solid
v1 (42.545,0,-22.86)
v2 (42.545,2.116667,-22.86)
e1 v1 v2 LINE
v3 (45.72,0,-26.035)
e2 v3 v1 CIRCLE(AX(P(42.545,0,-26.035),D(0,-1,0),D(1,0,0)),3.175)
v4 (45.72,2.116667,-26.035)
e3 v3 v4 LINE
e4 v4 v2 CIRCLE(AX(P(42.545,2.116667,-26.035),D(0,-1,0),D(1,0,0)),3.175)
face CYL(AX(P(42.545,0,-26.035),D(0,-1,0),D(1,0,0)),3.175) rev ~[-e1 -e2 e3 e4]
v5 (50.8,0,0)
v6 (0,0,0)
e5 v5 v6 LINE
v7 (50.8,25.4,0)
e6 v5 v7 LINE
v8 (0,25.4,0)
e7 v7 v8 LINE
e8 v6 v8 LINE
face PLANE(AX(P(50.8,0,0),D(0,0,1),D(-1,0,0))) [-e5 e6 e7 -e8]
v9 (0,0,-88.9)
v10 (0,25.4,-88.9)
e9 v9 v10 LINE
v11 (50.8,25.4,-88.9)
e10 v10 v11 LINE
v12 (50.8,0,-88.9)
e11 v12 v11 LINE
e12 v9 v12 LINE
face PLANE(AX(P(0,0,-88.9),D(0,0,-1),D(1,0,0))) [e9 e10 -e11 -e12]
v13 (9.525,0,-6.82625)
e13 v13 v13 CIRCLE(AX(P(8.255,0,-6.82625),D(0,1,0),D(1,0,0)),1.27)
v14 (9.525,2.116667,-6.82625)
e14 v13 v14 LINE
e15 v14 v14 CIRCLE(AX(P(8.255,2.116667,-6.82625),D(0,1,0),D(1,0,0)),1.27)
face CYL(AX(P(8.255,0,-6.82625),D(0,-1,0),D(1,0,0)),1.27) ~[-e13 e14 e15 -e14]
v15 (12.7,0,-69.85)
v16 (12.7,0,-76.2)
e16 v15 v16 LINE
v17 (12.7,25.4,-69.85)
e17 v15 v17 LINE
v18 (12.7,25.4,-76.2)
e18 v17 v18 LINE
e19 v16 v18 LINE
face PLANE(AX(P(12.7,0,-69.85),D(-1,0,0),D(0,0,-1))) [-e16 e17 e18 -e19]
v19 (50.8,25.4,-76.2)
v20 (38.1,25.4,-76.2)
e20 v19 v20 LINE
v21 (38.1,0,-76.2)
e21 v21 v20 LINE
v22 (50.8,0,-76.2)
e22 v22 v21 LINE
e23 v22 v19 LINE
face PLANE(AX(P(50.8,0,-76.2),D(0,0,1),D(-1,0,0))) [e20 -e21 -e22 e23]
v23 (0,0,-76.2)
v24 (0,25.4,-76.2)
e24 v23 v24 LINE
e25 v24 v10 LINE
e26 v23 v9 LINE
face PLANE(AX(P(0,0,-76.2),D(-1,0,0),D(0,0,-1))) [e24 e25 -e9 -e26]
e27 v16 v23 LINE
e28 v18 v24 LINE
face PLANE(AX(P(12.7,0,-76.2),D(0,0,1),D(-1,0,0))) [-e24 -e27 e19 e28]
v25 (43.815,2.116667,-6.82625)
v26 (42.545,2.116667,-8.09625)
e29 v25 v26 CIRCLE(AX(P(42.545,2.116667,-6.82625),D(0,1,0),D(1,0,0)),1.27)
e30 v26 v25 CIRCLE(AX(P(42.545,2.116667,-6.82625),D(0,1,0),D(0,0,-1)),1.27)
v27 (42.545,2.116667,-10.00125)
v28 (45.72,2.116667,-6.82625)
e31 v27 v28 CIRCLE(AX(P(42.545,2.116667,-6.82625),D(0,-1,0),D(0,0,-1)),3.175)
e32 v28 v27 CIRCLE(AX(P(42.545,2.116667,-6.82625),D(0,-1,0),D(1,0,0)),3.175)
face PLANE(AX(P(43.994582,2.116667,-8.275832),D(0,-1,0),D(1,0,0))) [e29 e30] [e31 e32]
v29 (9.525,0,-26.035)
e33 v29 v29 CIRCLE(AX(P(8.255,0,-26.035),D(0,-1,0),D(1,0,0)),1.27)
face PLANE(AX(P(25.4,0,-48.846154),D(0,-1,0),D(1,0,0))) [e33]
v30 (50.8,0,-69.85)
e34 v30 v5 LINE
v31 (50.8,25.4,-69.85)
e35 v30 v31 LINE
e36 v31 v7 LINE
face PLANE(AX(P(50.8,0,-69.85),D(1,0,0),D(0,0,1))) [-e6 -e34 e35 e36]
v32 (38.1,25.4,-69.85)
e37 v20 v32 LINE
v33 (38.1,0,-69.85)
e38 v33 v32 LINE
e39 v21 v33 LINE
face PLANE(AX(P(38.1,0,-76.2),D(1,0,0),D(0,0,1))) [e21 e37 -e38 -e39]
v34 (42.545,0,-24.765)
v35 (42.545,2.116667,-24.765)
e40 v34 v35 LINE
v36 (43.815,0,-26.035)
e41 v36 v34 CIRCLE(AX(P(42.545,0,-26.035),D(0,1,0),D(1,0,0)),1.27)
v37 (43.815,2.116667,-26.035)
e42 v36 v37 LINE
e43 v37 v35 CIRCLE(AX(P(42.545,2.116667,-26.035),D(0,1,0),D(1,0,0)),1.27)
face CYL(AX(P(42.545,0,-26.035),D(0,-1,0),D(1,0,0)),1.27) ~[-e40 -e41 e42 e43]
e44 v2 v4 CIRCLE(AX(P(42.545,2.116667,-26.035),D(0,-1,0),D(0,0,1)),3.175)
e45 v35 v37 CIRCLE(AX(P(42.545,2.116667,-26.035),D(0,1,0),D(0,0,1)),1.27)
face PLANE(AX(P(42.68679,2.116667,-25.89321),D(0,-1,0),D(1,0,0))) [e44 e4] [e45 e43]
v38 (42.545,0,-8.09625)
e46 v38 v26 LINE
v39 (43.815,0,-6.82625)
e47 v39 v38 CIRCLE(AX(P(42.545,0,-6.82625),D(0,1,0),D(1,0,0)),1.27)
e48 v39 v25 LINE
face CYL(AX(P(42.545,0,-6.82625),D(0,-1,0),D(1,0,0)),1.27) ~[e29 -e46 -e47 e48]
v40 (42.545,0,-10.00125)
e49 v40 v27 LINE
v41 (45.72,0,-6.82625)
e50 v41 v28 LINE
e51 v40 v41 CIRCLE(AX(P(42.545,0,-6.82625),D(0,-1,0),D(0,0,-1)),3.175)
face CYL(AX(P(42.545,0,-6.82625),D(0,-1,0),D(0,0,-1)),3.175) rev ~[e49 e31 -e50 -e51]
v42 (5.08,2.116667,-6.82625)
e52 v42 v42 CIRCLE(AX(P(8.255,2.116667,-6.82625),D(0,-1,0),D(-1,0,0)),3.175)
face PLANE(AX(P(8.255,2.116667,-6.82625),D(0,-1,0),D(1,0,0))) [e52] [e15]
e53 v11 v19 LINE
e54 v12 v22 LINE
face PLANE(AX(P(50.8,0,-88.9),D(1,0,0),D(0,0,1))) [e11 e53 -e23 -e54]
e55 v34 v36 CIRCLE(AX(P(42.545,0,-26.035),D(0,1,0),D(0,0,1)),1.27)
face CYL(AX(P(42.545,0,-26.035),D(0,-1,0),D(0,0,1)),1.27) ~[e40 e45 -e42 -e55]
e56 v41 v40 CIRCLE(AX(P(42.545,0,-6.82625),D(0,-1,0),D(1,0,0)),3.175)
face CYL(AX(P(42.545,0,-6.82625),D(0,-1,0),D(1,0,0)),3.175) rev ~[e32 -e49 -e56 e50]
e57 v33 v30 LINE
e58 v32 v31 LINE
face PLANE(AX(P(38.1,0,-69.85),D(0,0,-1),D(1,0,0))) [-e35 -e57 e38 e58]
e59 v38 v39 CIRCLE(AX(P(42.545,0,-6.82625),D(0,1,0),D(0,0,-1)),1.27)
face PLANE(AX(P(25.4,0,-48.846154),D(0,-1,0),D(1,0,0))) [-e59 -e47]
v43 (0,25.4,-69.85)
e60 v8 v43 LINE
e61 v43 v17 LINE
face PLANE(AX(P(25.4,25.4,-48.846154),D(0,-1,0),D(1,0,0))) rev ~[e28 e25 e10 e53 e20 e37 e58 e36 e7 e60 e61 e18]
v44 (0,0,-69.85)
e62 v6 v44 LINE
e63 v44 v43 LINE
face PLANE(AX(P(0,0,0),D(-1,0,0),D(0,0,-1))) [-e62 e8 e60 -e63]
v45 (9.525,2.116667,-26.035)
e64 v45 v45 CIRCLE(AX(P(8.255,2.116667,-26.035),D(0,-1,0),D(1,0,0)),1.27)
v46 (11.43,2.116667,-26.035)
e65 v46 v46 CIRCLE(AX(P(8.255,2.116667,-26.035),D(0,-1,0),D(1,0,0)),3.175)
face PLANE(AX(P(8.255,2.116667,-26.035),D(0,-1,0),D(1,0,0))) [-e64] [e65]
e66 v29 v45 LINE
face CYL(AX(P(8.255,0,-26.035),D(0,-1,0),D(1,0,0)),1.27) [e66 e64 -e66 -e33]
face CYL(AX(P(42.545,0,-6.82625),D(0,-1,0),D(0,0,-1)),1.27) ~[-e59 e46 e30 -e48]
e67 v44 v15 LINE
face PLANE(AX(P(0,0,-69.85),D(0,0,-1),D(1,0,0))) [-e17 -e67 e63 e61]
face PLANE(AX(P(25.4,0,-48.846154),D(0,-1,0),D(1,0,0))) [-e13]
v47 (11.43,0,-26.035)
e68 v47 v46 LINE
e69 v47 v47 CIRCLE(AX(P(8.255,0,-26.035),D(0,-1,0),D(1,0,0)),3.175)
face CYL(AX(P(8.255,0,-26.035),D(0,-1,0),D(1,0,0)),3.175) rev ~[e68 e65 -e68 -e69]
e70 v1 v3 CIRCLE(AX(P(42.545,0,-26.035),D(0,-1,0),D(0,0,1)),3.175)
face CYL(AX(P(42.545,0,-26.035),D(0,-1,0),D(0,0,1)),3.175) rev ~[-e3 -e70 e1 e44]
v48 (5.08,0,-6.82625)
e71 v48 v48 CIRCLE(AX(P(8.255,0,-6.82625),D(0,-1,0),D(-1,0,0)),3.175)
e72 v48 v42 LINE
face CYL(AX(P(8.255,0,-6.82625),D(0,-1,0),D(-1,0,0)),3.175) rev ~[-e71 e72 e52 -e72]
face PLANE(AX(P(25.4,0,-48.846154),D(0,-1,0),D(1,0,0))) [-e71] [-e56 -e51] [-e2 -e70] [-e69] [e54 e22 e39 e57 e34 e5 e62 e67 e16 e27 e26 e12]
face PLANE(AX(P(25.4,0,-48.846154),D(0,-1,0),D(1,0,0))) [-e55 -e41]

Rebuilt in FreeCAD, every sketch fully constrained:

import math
import FreeCAD as App
import Part
import Sketcher

V = App.Vector
Q = App.Units.Quantity

doc = App.newDocument("Part")
body = doc.addObject("PartDesign::Body", "Body")

# Sketch on XZ plane
sketch1 = doc.addObject("Sketcher::SketchObject", "Sketch")
body.addObject(sketch1)
sketch1.AttachmentSupport = (doc.XZ_Plane, [""])
sketch1.MapMode = "FlatFace"
sketch1.addGeometry([
    Part.LineSegment(V(51, 0, 0), V(0, 0, 0)),  # 0
    Part.LineSegment(V(0, 0, 0), V(0, -70, 0)),  # 1
    Part.LineSegment(V(0, -70, 0), V(13, -70, 0)),  # 2
    Part.LineSegment(V(13, -70, 0), V(13, -76, 0)),  # 3
    Part.LineSegment(V(13, -76, 0), V(0, -76, 0)),  # 4
    Part.LineSegment(V(0, -76, 0), V(0, -89, 0)),  # 5
    Part.LineSegment(V(0, -89, 0), V(51, -89, 0)),  # 6
    Part.LineSegment(V(51, -89, 0), V(51, -76, 0)),  # 7
    Part.LineSegment(V(51, -76, 0), V(38, -76, 0)),  # 8
    Part.LineSegment(V(38, -76, 0), V(38, -70, 0)),  # 9
    Part.LineSegment(V(38, -70, 0), V(51, -70, 0)),  # 10
    Part.LineSegment(V(51, -70, 0), V(51, 0, 0)),  # 11
], False)
sketch1.addConstraint([
    Sketcher.Constraint("Coincident", 0, 2, 1, 1),
    Sketcher.Constraint("Coincident", 1, 2, 2, 1),
    Sketcher.Constraint("Coincident", 2, 2, 3, 1),
    Sketcher.Constraint("Coincident", 3, 2, 4, 1),
    Sketcher.Constraint("Coincident", 4, 2, 5, 1),
    Sketcher.Constraint("Coincident", 5, 2, 6, 1),
    Sketcher.Constraint("Coincident", 6, 2, 7, 1),
    Sketcher.Constraint("Coincident", 7, 2, 8, 1),
    Sketcher.Constraint("Coincident", 8, 2, 9, 1),
    Sketcher.Constraint("Coincident", 9, 2, 10, 1),
    Sketcher.Constraint("Coincident", 10, 2, 11, 1),
    Sketcher.Constraint("Coincident", 11, 2, 0, 1),
    Sketcher.Constraint("Horizontal", 0),
    Sketcher.Constraint("Vertical", 1),
    Sketcher.Constraint("Horizontal", 2),
    Sketcher.Constraint("Vertical", 3),
    Sketcher.Constraint("Horizontal", 4),
    Sketcher.Constraint("Vertical", 5),
    Sketcher.Constraint("Horizontal", 6),
    Sketcher.Constraint("Vertical", 7),
    Sketcher.Constraint("Horizontal", 8),
    Sketcher.Constraint("Vertical", 9),
    Sketcher.Constraint("Horizontal", 10),
    Sketcher.Constraint("Vertical", 11),
    Sketcher.Constraint("Coincident", 0, 2, -1, 1),
    Sketcher.Constraint("PointOnObject", 4, 2, -2),
    Sketcher.Constraint("Horizontal", 4, 2, 7, 2),
    Sketcher.Constraint("Horizontal", 2, 2, 9, 2),
    Sketcher.Constraint("Vertical", 7, 2, 10, 2),
    Sketcher.Constraint("Equal", 4, 8),
    Sketcher.Constraint("Equal", 10, 5),
    Sketcher.Constraint("DistanceX", 0, 2, 0, 1, Q("2 in")),
    Sketcher.Constraint("DistanceX", 2, 1, 2, 2, Q("0.5 in")),
    Sketcher.Constraint("DistanceY", 3, 2, -1, 1, Q("3 in")),
    Sketcher.Constraint("DistanceY", 1, 2, 1, 1, Q("2.75 in")),
])
pad1 = doc.addObject("PartDesign::Pad", "Pad")
body.addObject(pad1)
pad1.Profile = sketch1
pad1.Length = Q("1 in")
pad1.Reversed = True

# Sketch on XZ plane
sketch2 = doc.addObject("Sketcher::SketchObject", "Sketch001")
body.addObject(sketch2)
sketch2.AttachmentSupport = (doc.XZ_Plane, [""])
sketch2.MapMode = "FlatFace"
sketch2.addGeometry([
    Part.Circle(V(8.3, -6.8, 0), V(0, 0, 1), 3.2),  # 0
    Part.Circle(V(8.3, -6.8, 0), V(0, 0, 1), 1.3),  # 1
    Part.ArcOfCircle(Part.Circle(V(42.5, -6.8, 0), V(0, 0, 1), 3.2), math.radians(-90), math.radians(0)),  # 2
    Part.ArcOfCircle(Part.Circle(V(42.5, -6.8, 0), V(0, 0, 1), 3.2), math.radians(0), math.radians(270)),  # 3
    Part.ArcOfCircle(Part.Circle(V(42.5, -6.8, 0), V(0, 0, 1), 1.3), math.radians(-90), math.radians(0)),  # 4
    Part.ArcOfCircle(Part.Circle(V(42.5, -6.8, 0), V(0, 0, 1), 1.3), math.radians(0), math.radians(270)),  # 5
    Part.ArcOfCircle(Part.Circle(V(42.5, -26, 0), V(0, 0, 1), 3.2), math.radians(0), math.radians(90)),  # 6
    Part.ArcOfCircle(Part.Circle(V(42.5, -26, 0), V(0, 0, 1), 3.2), math.radians(90), math.radians(360)),  # 7
    Part.ArcOfCircle(Part.Circle(V(42.5, -26, 0), V(0, 0, 1), 1.3), math.radians(0), math.radians(90)),  # 8
    Part.ArcOfCircle(Part.Circle(V(42.5, -26, 0), V(0, 0, 1), 1.3), math.radians(90), math.radians(360)),  # 9
    Part.Circle(V(8.3, -26, 0), V(0, 0, 1), 3.2),  # 10
    Part.Circle(V(8.3, -26, 0), V(0, 0, 1), 1.3),  # 11
], False)
sketch2.addConstraint([
    Sketcher.Constraint("Tangent", 2, 1, 3, 2),
    Sketcher.Constraint("Coincident", 3, 1, 2, 2),
    Sketcher.Constraint("Tangent", 4, 1, 5, 2),
    Sketcher.Constraint("Coincident", 5, 1, 4, 2),
    Sketcher.Constraint("Tangent", 6, 1, 7, 2),
    Sketcher.Constraint("Coincident", 7, 1, 6, 2),
    Sketcher.Constraint("Tangent", 8, 1, 9, 2),
    Sketcher.Constraint("Coincident", 9, 1, 8, 2),
    Sketcher.Constraint("Coincident", 1, 3, 0, 3),
    Sketcher.Constraint("Coincident", 4, 3, 2, 3),
    Sketcher.Constraint("Coincident", 8, 3, 6, 3),
    Sketcher.Constraint("Coincident", 11, 3, 10, 3),
    Sketcher.Constraint("Equal", 0, 2),
    Sketcher.Constraint("Equal", 1, 4),
    Sketcher.Constraint("Equal", 3, 6),
    Sketcher.Constraint("Equal", 5, 8),
    Sketcher.Constraint("Equal", 7, 10),
    Sketcher.Constraint("Equal", 9, 11),
    Sketcher.Constraint("Horizontal", 1, 3, 2, 3),
    Sketcher.Constraint("Horizontal", 9, 3, 10, 3),
    Sketcher.Constraint("Horizontal", 5, 3, 3, 1),
    Sketcher.Constraint("Horizontal", 3, 1, 5, 1),
    Sketcher.Constraint("Horizontal", 11, 3, 6, 1),
    Sketcher.Constraint("Horizontal", 6, 1, 8, 1),
    Sketcher.Constraint("Vertical", 5, 3, 6, 3),
    Sketcher.Constraint("Vertical", 1, 3, 10, 3),
    Sketcher.Constraint("Vertical", 9, 3, 2, 1),
    Sketcher.Constraint("Vertical", 2, 1, 4, 1),
    Sketcher.Constraint("Vertical", 4, 1, 7, 1),
    Sketcher.Constraint("Vertical", 7, 1, 9, 1),
    Sketcher.Constraint("Diameter", 1, Q("0.1 in")),
    Sketcher.Constraint("Diameter", 0, Q("0.25 in")),
    Sketcher.Constraint("DistanceX", -1, 1, 3, 1, Q("1.8 in")),
    Sketcher.Constraint("DistanceY", 7, 1, -1, 1, Q("0.9 in")),
    Sketcher.Constraint("DistanceX", 0, 3, 2, 3, Q("1.35 in")),
    Sketcher.Constraint("DistanceY", 0, 3, -1, 1, Q("6.82625 mm")),
])
pocket1 = doc.addObject("PartDesign::Pocket", "Pocket")
body.addObject(pocket1)
pocket1.Profile = sketch2
pocket1.Length = 2.116667

doc.recompute()
